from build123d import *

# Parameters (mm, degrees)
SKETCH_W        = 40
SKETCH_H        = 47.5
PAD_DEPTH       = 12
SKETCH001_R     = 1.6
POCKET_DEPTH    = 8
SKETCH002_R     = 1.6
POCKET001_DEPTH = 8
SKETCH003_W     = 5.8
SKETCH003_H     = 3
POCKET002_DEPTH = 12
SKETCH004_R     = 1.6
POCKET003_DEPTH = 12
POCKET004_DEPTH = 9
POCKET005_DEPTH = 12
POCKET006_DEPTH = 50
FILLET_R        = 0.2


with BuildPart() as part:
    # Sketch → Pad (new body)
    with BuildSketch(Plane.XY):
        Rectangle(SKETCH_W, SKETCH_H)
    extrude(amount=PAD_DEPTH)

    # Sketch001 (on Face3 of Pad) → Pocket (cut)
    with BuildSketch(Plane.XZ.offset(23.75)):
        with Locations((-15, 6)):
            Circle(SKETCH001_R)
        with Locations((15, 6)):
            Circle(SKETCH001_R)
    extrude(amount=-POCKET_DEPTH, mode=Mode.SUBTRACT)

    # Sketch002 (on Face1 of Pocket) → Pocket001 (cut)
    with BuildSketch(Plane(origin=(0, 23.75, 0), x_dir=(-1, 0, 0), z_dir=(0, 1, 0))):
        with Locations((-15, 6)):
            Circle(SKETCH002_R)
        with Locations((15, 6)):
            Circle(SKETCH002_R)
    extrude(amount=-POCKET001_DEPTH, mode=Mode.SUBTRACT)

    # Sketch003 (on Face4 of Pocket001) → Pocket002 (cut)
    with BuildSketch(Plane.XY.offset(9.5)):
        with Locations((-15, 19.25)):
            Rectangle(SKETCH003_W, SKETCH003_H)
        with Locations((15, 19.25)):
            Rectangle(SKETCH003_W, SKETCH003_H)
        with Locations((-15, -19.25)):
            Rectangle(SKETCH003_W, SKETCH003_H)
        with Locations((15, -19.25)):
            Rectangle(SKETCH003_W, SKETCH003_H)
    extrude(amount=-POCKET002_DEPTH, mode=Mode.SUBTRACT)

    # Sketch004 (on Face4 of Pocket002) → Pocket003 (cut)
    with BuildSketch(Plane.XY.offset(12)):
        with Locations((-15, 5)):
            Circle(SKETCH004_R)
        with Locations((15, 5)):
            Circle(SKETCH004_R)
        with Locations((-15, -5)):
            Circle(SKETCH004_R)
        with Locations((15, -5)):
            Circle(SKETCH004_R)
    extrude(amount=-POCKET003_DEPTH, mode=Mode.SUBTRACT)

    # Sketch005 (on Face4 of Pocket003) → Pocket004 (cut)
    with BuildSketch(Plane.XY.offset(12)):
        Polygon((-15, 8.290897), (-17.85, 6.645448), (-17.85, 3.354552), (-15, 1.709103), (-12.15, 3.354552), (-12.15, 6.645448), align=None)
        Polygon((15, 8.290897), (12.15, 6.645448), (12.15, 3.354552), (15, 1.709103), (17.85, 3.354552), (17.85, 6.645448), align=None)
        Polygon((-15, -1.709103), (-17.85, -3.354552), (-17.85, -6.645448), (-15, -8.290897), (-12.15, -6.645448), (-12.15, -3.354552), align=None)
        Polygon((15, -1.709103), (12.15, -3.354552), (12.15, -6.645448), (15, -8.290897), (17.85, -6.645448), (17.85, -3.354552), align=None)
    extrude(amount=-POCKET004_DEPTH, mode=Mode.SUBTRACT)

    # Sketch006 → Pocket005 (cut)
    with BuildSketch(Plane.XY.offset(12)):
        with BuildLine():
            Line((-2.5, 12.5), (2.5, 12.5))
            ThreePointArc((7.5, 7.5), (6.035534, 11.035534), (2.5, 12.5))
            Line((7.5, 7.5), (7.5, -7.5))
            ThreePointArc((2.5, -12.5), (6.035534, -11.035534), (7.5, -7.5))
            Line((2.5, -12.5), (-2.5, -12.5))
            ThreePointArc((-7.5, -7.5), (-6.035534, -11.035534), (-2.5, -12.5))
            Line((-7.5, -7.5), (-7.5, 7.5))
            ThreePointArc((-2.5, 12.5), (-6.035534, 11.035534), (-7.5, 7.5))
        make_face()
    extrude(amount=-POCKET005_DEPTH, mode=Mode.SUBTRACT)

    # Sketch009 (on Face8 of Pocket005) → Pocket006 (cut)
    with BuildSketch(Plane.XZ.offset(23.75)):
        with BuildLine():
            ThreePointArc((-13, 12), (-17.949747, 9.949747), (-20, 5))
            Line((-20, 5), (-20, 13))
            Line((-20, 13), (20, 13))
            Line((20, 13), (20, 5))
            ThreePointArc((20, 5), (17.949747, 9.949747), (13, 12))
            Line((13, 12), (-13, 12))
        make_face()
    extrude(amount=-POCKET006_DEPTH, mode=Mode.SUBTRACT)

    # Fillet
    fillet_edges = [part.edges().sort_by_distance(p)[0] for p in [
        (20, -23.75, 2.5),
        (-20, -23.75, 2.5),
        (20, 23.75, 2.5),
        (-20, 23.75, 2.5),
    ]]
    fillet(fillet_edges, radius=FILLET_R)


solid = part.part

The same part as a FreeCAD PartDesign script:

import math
import FreeCAD as App
import Part
import Sketcher
Q = App.Units.Quantity


def edges_at(feature, points):
    """Names of the edges that pass closest to the given points."""
    edges = feature.Shape.Edges
    near = lambda p: min(range(len(edges)), key=lambda i: edges[i].distToShape(Part.Vertex(*p))[0])
    return sorted({f"Edge{near(p) + 1}" for p in points})


def add_polygon(sketch, points):
    """Adds a closed chain of lines whose ends are joined by coincident constraints."""
    first, n = sketch.GeometryCount, len(points)
    for a, b in zip(points, points[1:] + points[:1]):
        sketch.addGeometry(Part.LineSegment(App.Vector(*a, 0), App.Vector(*b, 0)), False)
    for i in range(n):
        sketch.addConstraint(Sketcher.Constraint("Coincident", first + i, 2, first + (i + 1) % n, 1))

doc = App.newDocument("Part")
body = doc.addObject("PartDesign::Body", "Body")

sketch1 = body.newObject("Sketcher::SketchObject", "Sketch")
sketch1.AttachmentSupport = (doc.getObject("XY_Plane"), [""])
sketch1.MapMode = "FlatFace"
add_polygon(sketch1, [(-20, 23.75), (-20, -23.75), (20, -23.75), (20, 23.75)])
sketch1.addConstraint([
    Sketcher.Constraint("Vertical", 0),
    Sketcher.Constraint("Horizontal", 1),
    Sketcher.Constraint("Vertical", 2),
    Sketcher.Constraint("Horizontal", 3),
    Sketcher.Constraint("Symmetric", 0, 2, 2, 2, -1, 1),
    Sketcher.Constraint("DistanceX", 1, 1, 1, 2, Q("40 mm")),
    Sketcher.Constraint("DistanceY", 0, 2, 0, 1, Q("47.5 mm")),
])
pad1 = body.newObject("PartDesign::Pad", "Pad")
pad1.Profile = sketch1
pad1.Length = 12

sketch2 = body.newObject("Sketcher::SketchObject", "Sketch001")
sketch2.AttachmentSupport = (doc.getObject("XZ_Plane"), [""])
sketch2.MapMode = "FlatFace"
sketch2.AttachmentOffset = App.Placement(App.Vector(0, 0, 23.75), App.Rotation())
sketch2.addGeometry([
    Part.Circle(App.Vector(-15, 6, 0), App.Vector(0, 0, 1), 1.6),
    Part.Circle(App.Vector(15, 6, 0), App.Vector(0, 0, 1), 1.6),
], False)
sketch2.addConstraint([
    Sketcher.Constraint("Equal", 0, 1),
    Sketcher.Constraint("Symmetric", 0, 3, 1, 3, -2),
    Sketcher.Constraint("Diameter", 0, Q("3.2 mm")),
    Sketcher.Constraint("DistanceX", 0, 3, -1, 1, Q("15 mm")),
    Sketcher.Constraint("DistanceY", -1, 1, 0, 3, Q("6 mm")),
])
pocket1 = body.newObject("PartDesign::Pocket", "Pocket")
pocket1.Profile = sketch2
pocket1.Length = 8

sketch3 = body.newObject("Sketcher::SketchObject", "Sketch002")
sketch3.AttachmentSupport = (doc.getObject("XZ_Plane"), [""])
sketch3.MapMode = "FlatFace"
sketch3.AttachmentOffset = App.Placement(App.Vector(0, 0, -23.75), App.Rotation())
sketch3.addGeometry([
    Part.Circle(App.Vector(15, 6, 0), App.Vector(0, 0, 1), 1.6),
    Part.Circle(App.Vector(-15, 6, 0), App.Vector(0, 0, 1), 1.6),
], False)
sketch3.addConstraint([
    Sketcher.Constraint("Equal", 0, 1),
    Sketcher.Constraint("Symmetric", 0, 3, 1, 3, -2),
    Sketcher.Constraint("Diameter", 0, Q("3.2 mm")),
    Sketcher.Constraint("DistanceX", -1, 1, 0, 3, Q("15 mm")),
    Sketcher.Constraint("DistanceY", -1, 1, 0, 3, Q("6 mm")),
])
pocket2 = body.newObject("PartDesign::Pocket", "Pocket001")
pocket2.Profile = sketch3
pocket2.Length = 8
pocket2.Reversed = True

sketch4 = body.newObject("Sketcher::SketchObject", "Sketch003")
sketch4.AttachmentSupport = (doc.getObject("XY_Plane"), [""])
sketch4.MapMode = "FlatFace"
sketch4.AttachmentOffset = App.Placement(App.Vector(0, 0, 9.5), App.Rotation())
add_polygon(sketch4, [(-17.9, 20.75), (-17.9, 17.75), (-12.1, 17.75), (-12.1, 20.75)])
add_polygon(sketch4, [(12.1, 20.75), (12.1, 17.75), (17.9, 17.75), (17.9, 20.75)])
add_polygon(sketch4, [(-17.9, -17.75), (-17.9, -20.75), (-12.1, -20.75), (-12.1, -17.75)])
add_polygon(sketch4, [(12.1, -17.75), (12.1, -20.75), (17.9, -20.75), (17.9, -17.75)])
sketch4.addConstraint([
    Sketcher.Constraint("Vertical", 0),
    Sketcher.Constraint("Horizontal", 1),
    Sketcher.Constraint("Vertical", 2),
    Sketcher.Constraint("Horizontal", 3),
    Sketcher.Constraint("Vertical", 4),
    Sketcher.Constraint("Horizontal", 5),
    Sketcher.Constraint("Vertical", 6),
    Sketcher.Constraint("Horizontal", 7),
    Sketcher.Constraint("Vertical", 8),
    Sketcher.Constraint("Horizontal", 9),
    Sketcher.Constraint("Vertical", 10),
    Sketcher.Constraint("Horizontal", 11),
    Sketcher.Constraint("Vertical", 12),
    Sketcher.Constraint("Horizontal", 13),
    Sketcher.Constraint("Vertical", 14),
    Sketcher.Constraint("Horizontal", 15),
    Sketcher.Constraint("Symmetric", 6, 2, 8, 2, -1, 1),
    Sketcher.Constraint("Symmetric", 4, 2, 10, 2, -1, 1),
    Sketcher.Constraint("Symmetric", 2, 2, 12, 2, -1, 1),
    Sketcher.Constraint("Symmetric", 0, 2, 14, 2, -1, 1),
    Sketcher.Constraint("Symmetric", 1, 2, 4, 2, -2),
    Sketcher.Constraint("Symmetric", 3, 2, 6, 2, -2),
    Sketcher.Constraint("DistanceY", 0, 2, 0, 1, Q("3 mm")),
    Sketcher.Constraint("DistanceX", 1, 1, 1, 2, Q("5.8 mm")),
    Sketcher.Constraint("DistanceX", 0, 2, 4, 2, Q("30 mm")),
    Sketcher.Constraint("DistanceY", 8, 2, 0, 2, Q("38.5 mm")),
])
pocket3 = body.newObject("PartDesign::Pocket", "Pocket002")
pocket3.Profile = sketch4
pocket3.Length = 12

sketch5 = body.newObject("Sketcher::SketchObject", "Sketch004")
sketch5.AttachmentSupport = (doc.getObject("XY_Plane"), [""])
sketch5.MapMode = "FlatFace"
sketch5.AttachmentOffset = App.Placement(App.Vector(0, 0, 12), App.Rotation())
sketch5.addGeometry([
    Part.Circle(App.Vector(-15, 5, 0), App.Vector(0, 0, 1), 1.6),
    Part.Circle(App.Vector(15, 5, 0), App.Vector(0, 0, 1), 1.6),
    Part.Circle(App.Vector(-15, -5, 0), App.Vector(0, 0, 1), 1.6),
    Part.Circle(App.Vector(15, -5, 0), App.Vector(0, 0, 1), 1.6),
], False)
sketch5.addConstraint([
    Sketcher.Constraint("Equal", 0, 1),
    Sketcher.Constraint("Equal", 1, 2),
    Sketcher.Constraint("Equal", 2, 3),
    Sketcher.Constraint("Symmetric", 1, 3, 2, 3, -1, 1),
    Sketcher.Constraint("Symmetric", 0, 3, 3, 3, -1, 1),
    Sketcher.Constraint("Symmetric", 0, 3, 1, 3, -2),
    Sketcher.Constraint("Diameter", 0, Q("3.2 mm")),
    Sketcher.Constraint("DistanceX", 0, 3, -1, 1, Q("15 mm")),
    Sketcher.Constraint("DistanceY", -1, 1, 0, 3, Q("5 mm")),
])
pocket4 = body.newObject("PartDesign::Pocket", "Pocket003")
pocket4.Profile = sketch5
pocket4.Length = 12

sketch6 = body.newObject("Sketcher::SketchObject", "Sketch005")
sketch6.AttachmentSupport = (doc.getObject("XY_Plane"), [""])
sketch6.MapMode = "FlatFace"
sketch6.AttachmentOffset = App.Placement(App.Vector(0, 0, 12), App.Rotation())
add_polygon(sketch6, [(-15, 8.290897), (-17.85, 6.645448), (-17.85, 3.354552), (-15, 1.709103), (-12.15, 3.354552), (-12.15, 6.645448)])
add_polygon(sketch6, [(15, 8.290897), (12.15, 6.645448), (12.15, 3.354552), (15, 1.709103), (17.85, 3.354552), (17.85, 6.645448)])
add_polygon(sketch6, [(-15, -1.709103), (-17.85, -3.354552), (-17.85, -6.645448), (-15, -8.290897), (-12.15, -6.645448), (-12.15, -3.354552)])
add_polygon(sketch6, [(15, -1.709103), (12.15, -3.354552), (12.15, -6.645448), (15, -8.290897), (17.85, -6.645448), (17.85, -3.354552)])
sketch6.addConstraint([
    Sketcher.Constraint("Vertical", 1),
    Sketcher.Constraint("Vertical", 4),
    Sketcher.Constraint("Vertical", 7),
    Sketcher.Constraint("Vertical", 10),
    Sketcher.Constraint("Vertical", 13),
    Sketcher.Constraint("Vertical", 16),
    Sketcher.Constraint("Vertical", 19),
    Sketcher.Constraint("Vertical", 22),
    Sketcher.Constraint("Symmetric", 9, 2, 12, 2, -1, 1),
    Sketcher.Constraint("Symmetric", 11, 2, 14, 2, -1, 1),
    Sketcher.Constraint("Symmetric", 6, 2, 15, 2, -1, 1),
    Sketcher.Constraint("Symmetric", 8, 2, 17, 2, -1, 1),
    Sketcher.Constraint("Symmetric", 3, 2, 18, 2, -1, 1),
    Sketcher.Constraint("Symmetric", 5, 2, 20, 2, -1, 1),
    Sketcher.Constraint("Symmetric", 0, 2, 21, 2, -1, 1),
    Sketcher.Constraint("Symmetric", 2, 2, 23, 2, -1, 1),
    Sketcher.Constraint("Symmetric", 4, 2, 6, 2, -2),
    Sketcher.Constraint("Symmetric", 2, 2, 8, 2, -2),
    Sketcher.Constraint("Symmetric", 1, 2, 9, 2, -2),
    Sketcher.Constraint("Symmetric", 5, 2, 11, 2, -2),
    Sketcher.Constraint("Parallel", 0, 3),
    Sketcher.Constraint("Parallel", 2, 5),
    Sketcher.Constraint("Parallel", 3, 6),
    Sketcher.Constraint("Parallel", 5, 8),
    Sketcher.Constraint("Parallel", 8, 11),
    Sketcher.Constraint("Parallel", 11, 14),
    Sketcher.Constraint("Parallel", 14, 17),
    Sketcher.Constraint("Parallel", 17, 20),
    Sketcher.Constraint("Parallel", 20, 23),
    Sketcher.Constraint("Horizontal", 1, 2, 3, 2),
    Sketcher.Constraint("Horizontal", 0, 2, 4, 2),
    Sketcher.Constraint("Angle", 0, Q("-149.999989 deg")),
    Sketcher.Constraint("DistanceX", 2, 2, -1, 1, Q("15 mm")),
    Sketcher.Constraint("DistanceY", 12, 2, 0, 2, Q("10 mm")),
    Sketcher.Constraint("DistanceX", 1, 2, 3, 2, Q("5.7 mm")),
    Sketcher.Constraint("DistanceY", 1, 2, 1, 1, Q("3.290896 mm")),
])
pocket5 = body.newObject("PartDesign::Pocket", "Pocket004")
pocket5.Profile = sketch6
pocket5.Length = 9

sketch7 = body.newObject("Sketcher::SketchObject", "Sketch006")
sketch7.AttachmentSupport = (doc.getObject("XY_Plane"), [""])
sketch7.MapMode = "FlatFace"
sketch7.AttachmentOffset = App.Placement(App.Vector(0, 0, 12), App.Rotation())
sketch7.addGeometry([
    Part.LineSegment(App.Vector(2.5, 12.5, 0), App.Vector(-2.5, 12.5, 0)),
    Part.ArcOfCircle(Part.Circle(App.Vector(-2.5, 7.5, 0), App.Vector(0, 0, 1), 5), math.radians(89.999996), math.radians(180.000004)),
    Part.LineSegment(App.Vector(-7.5, 7.5, 0), App.Vector(-7.5, -7.5, 0)),
    Part.ArcOfCircle(Part.Circle(App.Vector(-2.5, -7.5, 0), App.Vector(0, 0, 1), 5), math.radians(179.999996), math.radians(270.000004)),
    Part.LineSegment(App.Vector(-2.5, -12.5, 0), App.Vector(2.5, -12.5, 0)),
    Part.ArcOfCircle(Part.Circle(App.Vector(2.5, -7.5, 0), App.Vector(0, 0, 1), 5), math.radians(-90.000004), math.radians(0.000004)),
    Part.LineSegment(App.Vector(7.5, -7.5, 0), App.Vector(7.5, 7.5, 0)),
    Part.ArcOfCircle(Part.Circle(App.Vector(2.5, 7.5, 0), App.Vector(0, 0, 1), 5), math.radians(-0.000004), math.radians(90.000004)),
], False)
sketch7.addConstraint([
    Sketcher.Constraint("Tangent", 0, 2, 1, 1),
    Sketcher.Constraint("Tangent", 1, 2, 2, 1),
    Sketcher.Constraint("Tangent", 2, 2, 3, 1),
    Sketcher.Constraint("Tangent", 3, 2, 4, 1),
    Sketcher.Constraint("Tangent", 4, 2, 5, 1),
    Sketcher.Constraint("Tangent", 5, 2, 6, 1),
    Sketcher.Constraint("Tangent", 6, 2, 7, 1),
    Sketcher.Constraint("Tangent", 7, 2, 0, 1),
    Sketcher.Constraint("Horizontal", 0),
    Sketcher.Constraint("Vertical", 2),
    Sketcher.Constraint("Horizontal", 4),
    Sketcher.Constraint("Vertical", 6),
    Sketcher.Constraint("Equal", 1, 3),
    Sketcher.Constraint("Equal", 3, 5),
    Sketcher.Constraint("Equal", 5, 7),
    Sketcher.Constraint("Symmetric", 1, 3, 5, 3, -1, 1),
    Sketcher.Constraint("Radius", 1, Q("5 mm")),
    Sketcher.Constraint("DistanceX", 0, 2, 0, 1, Q("5 mm")),
    Sketcher.Constraint("DistanceY", 2, 2, 2, 1, Q("15 mm")),
])
pocket6 = body.newObject("PartDesign::Pocket", "Pocket005")
pocket6.Profile = sketch7
pocket6.Length = 12

sketch8 = body.newObject("Sketcher::SketchObject", "Sketch007")
sketch8.AttachmentSupport = (doc.getObject("XZ_Plane"), [""])
sketch8.MapMode = "FlatFace"
sketch8.AttachmentOffset = App.Placement(App.Vector(0, 0, 23.75), App.Rotation())
sketch8.addGeometry([
    Part.ArcOfCircle(Part.Circle(App.Vector(-12.999998, 4.999998, 0), App.Vector(0, 0, 1), 7.000002), math.radians(90.000013), math.radians(179.999987)),
    Part.LineSegment(App.Vector(-13, 12, 0), App.Vector(13, 12, 0)),
    Part.ArcOfCircle(Part.Circle(App.Vector(12.999998, 4.999998, 0), App.Vector(0, 0, 1), 7.000002), math.radians(0.000013), math.radians(89.999987)),
    Part.LineSegment(App.Vector(20, 5, 0), App.Vector(20, 13, 0)),
    Part.LineSegment(App.Vector(20, 13, 0), App.Vector(-20, 13, 0)),
    Part.LineSegment(App.Vector(-20, 13, 0), App.Vector(-20, 5, 0)),
], False)
sketch8.addConstraint([
    Sketcher.Constraint("Tangent", 0, 1, 1, 1),
    Sketcher.Constraint("Tangent", 1, 2, 2, 2),
    Sketcher.Constraint("Tangent", 2, 1, 3, 1),
    Sketcher.Constraint("Coincident", 3, 2, 4, 1),
    Sketcher.Constraint("Coincident", 4, 2, 5, 1),
    Sketcher.Constraint("Tangent", 5, 2, 0, 2),
    Sketcher.Constraint("Horizontal", 1),
    Sketcher.Constraint("Vertical", 3),
    Sketcher.Constraint("Horizontal", 4),
    Sketcher.Constraint("Vertical", 5),
    Sketcher.Constraint("Equal", 0, 2),
    Sketcher.Constraint("Radius", 0, Q("7.000002 mm")),
    Sketcher.Constraint("DistanceX", 1, 1, 1, 2, Q("26 mm")),
    Sketcher.Constraint("DistanceY", 3, 1, 3, 2, Q("8 mm")),
    Sketcher.Constraint("DistanceX", 0, 3, -1, 1, Q("12.999998 mm")),
    Sketcher.Constraint("DistanceY", -1, 1, 0, 3, Q("4.999998 mm")),
])
pocket7 = body.newObject("PartDesign::Pocket", "Pocket006")
pocket7.Profile = sketch8
pocket7.Length = 50
doc.recompute()

fillet = body.newObject("PartDesign::Fillet", "Fillet")
fillet.Base = (pocket7, edges_at(pocket7, [
    (20, -23.75, 2.5),
    (-20, -23.75, 2.5),
    (20, 23.75, 2.5),
    (-20, 23.75, 2.5),
]))
fillet.Radius = 0.2

doc.recompute()
